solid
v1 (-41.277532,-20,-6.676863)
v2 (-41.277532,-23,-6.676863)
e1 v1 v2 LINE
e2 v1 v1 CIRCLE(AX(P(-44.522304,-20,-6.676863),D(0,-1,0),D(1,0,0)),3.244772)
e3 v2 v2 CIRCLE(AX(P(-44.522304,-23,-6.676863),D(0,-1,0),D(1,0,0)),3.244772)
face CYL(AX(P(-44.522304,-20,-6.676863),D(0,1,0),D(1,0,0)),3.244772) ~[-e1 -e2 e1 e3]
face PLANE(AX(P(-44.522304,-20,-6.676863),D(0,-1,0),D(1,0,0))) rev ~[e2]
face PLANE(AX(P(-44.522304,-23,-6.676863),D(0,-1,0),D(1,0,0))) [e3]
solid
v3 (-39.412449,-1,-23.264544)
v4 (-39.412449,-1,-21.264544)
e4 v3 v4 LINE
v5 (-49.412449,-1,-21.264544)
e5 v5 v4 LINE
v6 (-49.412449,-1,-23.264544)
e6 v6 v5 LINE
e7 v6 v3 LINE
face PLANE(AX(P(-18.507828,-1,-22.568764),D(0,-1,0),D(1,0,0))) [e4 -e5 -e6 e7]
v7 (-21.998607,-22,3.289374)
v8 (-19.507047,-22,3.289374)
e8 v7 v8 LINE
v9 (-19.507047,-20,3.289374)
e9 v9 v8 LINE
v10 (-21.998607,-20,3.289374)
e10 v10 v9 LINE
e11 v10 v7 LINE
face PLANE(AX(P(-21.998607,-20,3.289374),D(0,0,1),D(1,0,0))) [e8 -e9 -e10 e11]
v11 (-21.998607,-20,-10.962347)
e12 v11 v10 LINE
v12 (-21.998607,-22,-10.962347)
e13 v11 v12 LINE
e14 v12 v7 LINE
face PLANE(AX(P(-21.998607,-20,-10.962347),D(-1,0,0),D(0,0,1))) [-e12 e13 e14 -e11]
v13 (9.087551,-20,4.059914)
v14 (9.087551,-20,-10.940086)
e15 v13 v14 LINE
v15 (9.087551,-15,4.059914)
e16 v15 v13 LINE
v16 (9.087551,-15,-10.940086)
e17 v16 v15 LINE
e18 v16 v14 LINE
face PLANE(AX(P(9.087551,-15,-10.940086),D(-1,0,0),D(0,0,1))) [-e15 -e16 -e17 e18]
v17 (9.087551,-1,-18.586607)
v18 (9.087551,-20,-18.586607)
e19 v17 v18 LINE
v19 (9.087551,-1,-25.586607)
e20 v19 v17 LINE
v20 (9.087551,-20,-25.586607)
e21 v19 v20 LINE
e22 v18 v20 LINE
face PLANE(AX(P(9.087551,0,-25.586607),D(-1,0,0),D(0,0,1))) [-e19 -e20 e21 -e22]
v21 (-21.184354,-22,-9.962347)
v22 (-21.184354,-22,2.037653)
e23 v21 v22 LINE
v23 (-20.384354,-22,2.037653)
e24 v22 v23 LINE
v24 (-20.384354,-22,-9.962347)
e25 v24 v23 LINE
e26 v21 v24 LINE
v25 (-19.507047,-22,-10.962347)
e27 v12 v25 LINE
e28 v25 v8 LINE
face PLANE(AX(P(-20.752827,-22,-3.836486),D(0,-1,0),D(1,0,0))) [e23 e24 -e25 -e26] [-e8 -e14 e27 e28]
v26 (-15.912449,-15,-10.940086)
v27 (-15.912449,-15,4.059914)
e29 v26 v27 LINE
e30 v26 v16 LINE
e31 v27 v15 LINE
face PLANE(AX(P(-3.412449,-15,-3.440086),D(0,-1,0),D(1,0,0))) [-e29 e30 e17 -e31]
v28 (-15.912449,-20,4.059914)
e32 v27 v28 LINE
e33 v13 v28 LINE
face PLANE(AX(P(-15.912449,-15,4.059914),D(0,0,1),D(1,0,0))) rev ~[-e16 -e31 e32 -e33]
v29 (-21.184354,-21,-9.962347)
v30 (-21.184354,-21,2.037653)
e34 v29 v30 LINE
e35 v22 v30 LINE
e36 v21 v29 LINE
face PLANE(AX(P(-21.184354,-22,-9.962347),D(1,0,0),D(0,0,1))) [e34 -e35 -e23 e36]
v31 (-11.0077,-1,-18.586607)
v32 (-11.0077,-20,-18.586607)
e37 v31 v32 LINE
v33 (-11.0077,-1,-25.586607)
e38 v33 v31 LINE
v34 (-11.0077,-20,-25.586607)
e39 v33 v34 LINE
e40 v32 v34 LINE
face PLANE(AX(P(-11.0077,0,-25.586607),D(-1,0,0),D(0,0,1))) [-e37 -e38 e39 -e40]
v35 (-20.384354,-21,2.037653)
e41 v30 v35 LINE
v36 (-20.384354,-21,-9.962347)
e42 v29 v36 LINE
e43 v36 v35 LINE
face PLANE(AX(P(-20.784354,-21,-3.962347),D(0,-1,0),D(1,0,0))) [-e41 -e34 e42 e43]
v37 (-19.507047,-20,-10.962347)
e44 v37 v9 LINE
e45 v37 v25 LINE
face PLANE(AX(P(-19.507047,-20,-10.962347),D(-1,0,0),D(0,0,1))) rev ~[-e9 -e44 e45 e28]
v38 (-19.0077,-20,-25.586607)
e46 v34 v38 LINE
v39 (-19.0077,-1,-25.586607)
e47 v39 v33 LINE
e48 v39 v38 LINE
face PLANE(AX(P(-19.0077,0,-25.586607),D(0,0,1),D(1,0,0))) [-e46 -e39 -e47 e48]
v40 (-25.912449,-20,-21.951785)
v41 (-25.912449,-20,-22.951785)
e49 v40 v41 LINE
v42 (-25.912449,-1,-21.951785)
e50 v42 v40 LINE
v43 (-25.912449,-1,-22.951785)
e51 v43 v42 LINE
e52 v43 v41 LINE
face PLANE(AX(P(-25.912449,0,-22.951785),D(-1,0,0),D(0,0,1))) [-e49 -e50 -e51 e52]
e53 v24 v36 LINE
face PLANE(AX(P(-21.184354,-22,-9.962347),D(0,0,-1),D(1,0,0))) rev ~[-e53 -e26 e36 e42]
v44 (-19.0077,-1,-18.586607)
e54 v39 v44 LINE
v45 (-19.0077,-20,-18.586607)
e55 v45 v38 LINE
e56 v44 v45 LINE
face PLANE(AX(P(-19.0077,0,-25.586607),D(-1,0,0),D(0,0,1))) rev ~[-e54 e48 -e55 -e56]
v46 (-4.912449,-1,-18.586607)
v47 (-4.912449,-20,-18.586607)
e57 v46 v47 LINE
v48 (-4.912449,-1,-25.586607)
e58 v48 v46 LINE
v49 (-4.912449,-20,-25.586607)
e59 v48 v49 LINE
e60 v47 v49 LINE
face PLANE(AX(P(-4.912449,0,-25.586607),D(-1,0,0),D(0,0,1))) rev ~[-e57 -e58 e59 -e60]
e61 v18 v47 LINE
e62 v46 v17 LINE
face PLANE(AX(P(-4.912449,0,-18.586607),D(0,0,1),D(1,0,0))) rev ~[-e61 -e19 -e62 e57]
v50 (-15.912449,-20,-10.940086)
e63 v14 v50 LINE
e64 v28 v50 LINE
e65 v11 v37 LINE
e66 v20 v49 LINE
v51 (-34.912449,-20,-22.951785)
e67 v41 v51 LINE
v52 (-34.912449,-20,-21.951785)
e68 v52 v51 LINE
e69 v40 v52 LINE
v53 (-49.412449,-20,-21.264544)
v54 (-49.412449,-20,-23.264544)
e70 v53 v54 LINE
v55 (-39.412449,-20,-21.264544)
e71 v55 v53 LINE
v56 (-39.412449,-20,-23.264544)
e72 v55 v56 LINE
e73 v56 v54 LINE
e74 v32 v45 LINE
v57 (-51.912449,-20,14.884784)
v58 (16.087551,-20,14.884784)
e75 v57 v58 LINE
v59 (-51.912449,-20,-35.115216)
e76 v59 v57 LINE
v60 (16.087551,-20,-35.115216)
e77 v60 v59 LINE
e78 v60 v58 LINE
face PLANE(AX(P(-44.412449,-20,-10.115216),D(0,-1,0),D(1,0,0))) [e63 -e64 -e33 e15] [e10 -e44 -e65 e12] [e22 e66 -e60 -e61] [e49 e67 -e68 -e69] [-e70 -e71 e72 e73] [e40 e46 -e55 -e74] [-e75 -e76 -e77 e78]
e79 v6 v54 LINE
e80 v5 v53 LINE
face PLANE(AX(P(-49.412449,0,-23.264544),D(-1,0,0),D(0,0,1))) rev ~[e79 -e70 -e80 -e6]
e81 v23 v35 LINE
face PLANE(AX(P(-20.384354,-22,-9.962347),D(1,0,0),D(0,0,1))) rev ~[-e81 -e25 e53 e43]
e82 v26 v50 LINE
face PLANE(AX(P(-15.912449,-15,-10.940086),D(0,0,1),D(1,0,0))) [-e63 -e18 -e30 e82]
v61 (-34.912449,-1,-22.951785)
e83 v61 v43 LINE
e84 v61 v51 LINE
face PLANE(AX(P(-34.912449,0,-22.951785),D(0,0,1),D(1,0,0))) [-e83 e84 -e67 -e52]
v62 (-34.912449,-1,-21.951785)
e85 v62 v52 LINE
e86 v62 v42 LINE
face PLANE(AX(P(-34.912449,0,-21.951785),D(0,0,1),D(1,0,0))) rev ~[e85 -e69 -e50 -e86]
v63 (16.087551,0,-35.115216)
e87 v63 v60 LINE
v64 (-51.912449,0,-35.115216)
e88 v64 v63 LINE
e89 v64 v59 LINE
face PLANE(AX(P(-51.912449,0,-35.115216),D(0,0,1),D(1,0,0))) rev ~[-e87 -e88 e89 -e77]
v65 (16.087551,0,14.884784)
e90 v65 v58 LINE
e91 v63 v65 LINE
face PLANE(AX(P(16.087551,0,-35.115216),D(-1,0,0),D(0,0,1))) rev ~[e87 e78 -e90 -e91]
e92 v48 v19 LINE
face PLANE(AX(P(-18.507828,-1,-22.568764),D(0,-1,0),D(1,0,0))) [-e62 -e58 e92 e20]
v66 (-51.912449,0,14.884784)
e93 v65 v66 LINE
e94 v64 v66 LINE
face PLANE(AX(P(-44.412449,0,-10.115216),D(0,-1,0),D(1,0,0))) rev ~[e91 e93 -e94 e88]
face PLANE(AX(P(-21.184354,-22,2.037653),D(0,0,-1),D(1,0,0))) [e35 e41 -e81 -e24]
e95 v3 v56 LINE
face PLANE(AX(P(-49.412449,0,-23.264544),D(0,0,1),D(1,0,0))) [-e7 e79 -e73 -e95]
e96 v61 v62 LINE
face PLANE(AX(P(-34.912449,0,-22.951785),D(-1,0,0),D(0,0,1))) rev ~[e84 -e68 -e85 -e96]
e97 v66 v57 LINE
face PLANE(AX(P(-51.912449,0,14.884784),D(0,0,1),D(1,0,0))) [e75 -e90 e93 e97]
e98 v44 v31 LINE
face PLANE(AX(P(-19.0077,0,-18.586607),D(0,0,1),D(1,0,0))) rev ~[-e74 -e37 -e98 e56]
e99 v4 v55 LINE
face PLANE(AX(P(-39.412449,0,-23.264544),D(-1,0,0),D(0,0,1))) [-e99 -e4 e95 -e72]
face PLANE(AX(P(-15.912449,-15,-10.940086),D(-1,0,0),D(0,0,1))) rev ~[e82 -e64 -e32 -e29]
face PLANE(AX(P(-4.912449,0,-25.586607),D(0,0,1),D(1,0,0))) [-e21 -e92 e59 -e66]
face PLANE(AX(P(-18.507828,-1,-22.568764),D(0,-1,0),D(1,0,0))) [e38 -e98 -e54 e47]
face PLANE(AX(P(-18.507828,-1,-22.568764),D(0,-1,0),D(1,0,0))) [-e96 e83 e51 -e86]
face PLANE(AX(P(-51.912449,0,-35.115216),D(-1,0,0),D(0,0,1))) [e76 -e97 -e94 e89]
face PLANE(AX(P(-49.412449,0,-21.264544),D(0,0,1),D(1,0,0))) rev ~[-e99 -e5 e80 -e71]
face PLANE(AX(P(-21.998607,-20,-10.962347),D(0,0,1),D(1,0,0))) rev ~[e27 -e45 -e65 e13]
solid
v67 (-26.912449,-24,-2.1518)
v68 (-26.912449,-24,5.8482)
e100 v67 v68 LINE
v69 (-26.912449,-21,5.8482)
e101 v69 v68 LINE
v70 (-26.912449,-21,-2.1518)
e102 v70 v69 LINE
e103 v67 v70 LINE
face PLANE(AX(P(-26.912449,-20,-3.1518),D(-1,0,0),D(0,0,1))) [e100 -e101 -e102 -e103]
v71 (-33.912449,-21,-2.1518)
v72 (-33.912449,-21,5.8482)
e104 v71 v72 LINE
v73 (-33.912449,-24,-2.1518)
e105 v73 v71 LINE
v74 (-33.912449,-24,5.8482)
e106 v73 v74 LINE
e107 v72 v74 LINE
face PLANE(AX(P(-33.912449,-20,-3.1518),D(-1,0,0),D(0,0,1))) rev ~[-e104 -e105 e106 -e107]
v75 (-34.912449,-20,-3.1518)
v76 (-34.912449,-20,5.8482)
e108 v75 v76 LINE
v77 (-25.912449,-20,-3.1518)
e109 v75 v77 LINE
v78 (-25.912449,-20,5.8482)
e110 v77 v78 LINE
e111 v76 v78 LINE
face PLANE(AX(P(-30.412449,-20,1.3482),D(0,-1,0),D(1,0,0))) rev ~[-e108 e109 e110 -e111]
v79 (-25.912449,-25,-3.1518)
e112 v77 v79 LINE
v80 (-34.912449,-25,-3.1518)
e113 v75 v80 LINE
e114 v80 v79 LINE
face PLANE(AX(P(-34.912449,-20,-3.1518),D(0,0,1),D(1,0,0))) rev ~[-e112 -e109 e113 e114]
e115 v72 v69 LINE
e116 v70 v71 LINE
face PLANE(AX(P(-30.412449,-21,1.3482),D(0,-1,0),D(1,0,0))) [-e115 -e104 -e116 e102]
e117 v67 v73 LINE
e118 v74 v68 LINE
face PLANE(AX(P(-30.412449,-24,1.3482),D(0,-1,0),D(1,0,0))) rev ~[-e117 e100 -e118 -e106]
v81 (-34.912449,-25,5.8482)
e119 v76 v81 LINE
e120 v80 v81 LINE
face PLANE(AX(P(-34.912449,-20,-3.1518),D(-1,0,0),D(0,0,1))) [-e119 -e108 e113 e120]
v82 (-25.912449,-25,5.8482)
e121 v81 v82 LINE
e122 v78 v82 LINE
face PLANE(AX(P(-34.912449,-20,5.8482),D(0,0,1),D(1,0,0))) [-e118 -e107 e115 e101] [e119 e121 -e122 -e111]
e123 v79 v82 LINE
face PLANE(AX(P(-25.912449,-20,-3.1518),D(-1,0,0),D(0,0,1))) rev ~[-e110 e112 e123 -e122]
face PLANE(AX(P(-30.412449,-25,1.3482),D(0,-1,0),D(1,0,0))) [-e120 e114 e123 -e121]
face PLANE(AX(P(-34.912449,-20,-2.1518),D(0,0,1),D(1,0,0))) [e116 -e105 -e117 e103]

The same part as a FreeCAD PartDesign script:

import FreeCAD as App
import Part
import Sketcher
from FreeCAD import Vector


def faces_at(feature, points):
    """Names of the faces that lie closest to the given points."""
    faces = feature.Shape.Faces
    near = lambda p: min(range(len(faces)), key=lambda i: faces[i].distToShape(Part.Vertex(*p))[0])
    return sorted({f"Face{near(p) + 1}" for p in points})


def add_polygon(sketch, points):
    """Adds a closed chain of lines whose ends are joined by coincident constraints."""
    first, n = sketch.GeometryCount, len(points)
    for a, b in zip(points, points[1:] + points[:1]):
        sketch.addGeometry(Part.LineSegment(App.Vector(*a, 0), App.Vector(*b, 0)), False)
    for i in range(n):
        sketch.addConstraint(Sketcher.Constraint("Coincident", first + i, 2, first + (i + 1) % n, 1))

doc = App.newDocument("Part")
body = doc.addObject("PartDesign::Body", "Body")

# Sketch on XZ plane
sketch1 = body.newObject("Sketcher::SketchObject", "Sketch")
sketch1.AttachmentSupport = (doc.getObject("XZ_Plane"), [""])
sketch1.MapMode = "FlatFace"
add_polygon(sketch1, [(-52, 15), (-52, -35), (-37, -35), (-37, 15)])  # lines 0-3
sketch1.addConstraint(Sketcher.Constraint("Vertical", 0))
sketch1.addConstraint(Sketcher.Constraint("Horizontal", 1))
sketch1.addConstraint(Sketcher.Constraint("Vertical", 2))
sketch1.addConstraint(Sketcher.Constraint("Horizontal", 3))
sketch1.addConstraint(Sketcher.Constraint("DistanceX", 1, 1, 1, 2, 15.0))
sketch1.addConstraint(Sketcher.Constraint("DistanceY", 0, 2, 0, 1, 50.0))
sketch1.addConstraint(Sketcher.Constraint("DistanceX", 0, 2, -1, 1, 51.912449))
sketch1.addConstraint(Sketcher.Constraint("DistanceY", 0, 2, -1, 1, 35.115216))
pad1 = body.newObject("PartDesign::Pad", "Pad")
pad1.Profile = sketch1
pad1.Length = 20

# Sketch on XZ plane
sketch2 = body.newObject("Sketcher::SketchObject", "Sketch001")
sketch2.AttachmentSupport = (doc.getObject("XZ_Plane"), [""])
sketch2.MapMode = "FlatFace"
add_polygon(sketch2, [(-49.4, -21.3), (-49.4, -23.3), (-39.4, -23.3), (-39.4, -21.3)])  # lines 0-3
sketch2.addConstraint(Sketcher.Constraint("Vertical", 0))
sketch2.addConstraint(Sketcher.Constraint("Horizontal", 1))
sketch2.addConstraint(Sketcher.Constraint("Vertical", 2))
sketch2.addConstraint(Sketcher.Constraint("Horizontal", 3))
sketch2.addConstraint(Sketcher.Constraint("DistanceX", 1, 1, 1, 2, 10.0))
sketch2.addConstraint(Sketcher.Constraint("DistanceY", 0, 2, 0, 1, 2.0))
sketch2.addConstraint(Sketcher.Constraint("DistanceX", 0, 2, -1, 1, 49.412449))
sketch2.addConstraint(Sketcher.Constraint("DistanceY", 0, 2, -1, 1, 23.264544))
pocket1 = body.newObject("PartDesign::Pocket", "Pocket")
pocket1.Profile = sketch2
pocket1.Length = 25
pocket1.Reversed = True
body2 = doc.addObject("PartDesign::Body", "Body001")

# Sketch on XZ plane
sketch3 = body2.newObject("Sketcher::SketchObject", "Sketch002")
sketch3.AttachmentSupport = (doc.getObject("XZ_Plane001"), [""])
sketch3.MapMode = "FlatFace"
add_polygon(sketch3, [(-37, 15), (-37, -35), (-24, -35), (-24, 15)])  # lines 0-3
sketch3.addConstraint(Sketcher.Constraint("Vertical", 0))
sketch3.addConstraint(Sketcher.Constraint("Horizontal", 1))
sketch3.addConstraint(Sketcher.Constraint("Vertical", 2))
sketch3.addConstraint(Sketcher.Constraint("Horizontal", 3))
sketch3.addConstraint(Sketcher.Constraint("DistanceX", 1, 1, 1, 2, 13.0))
sketch3.addConstraint(Sketcher.Constraint("DistanceY", 0, 2, 0, 1, 50.0))
sketch3.addConstraint(Sketcher.Constraint("DistanceX", 0, 2, -1, 1, 36.912449))
sketch3.addConstraint(Sketcher.Constraint("DistanceY", 0, 2, -1, 1, 35.115216))
pad2 = body2.newObject("PartDesign::Pad", "Pad001")
pad2.Profile = sketch3
pad2.Length = 20

# Sketch on XZ plane
sketch4 = body2.newObject("Sketcher::SketchObject", "Sketch003")
sketch4.AttachmentSupport = (doc.getObject("XZ_Plane001"), [""])
sketch4.MapMode = "FlatFace"
add_polygon(sketch4, [(-34.9, -22), (-34.9, -23), (-25.9, -23), (-25.9, -22)])  # lines 0-3
sketch4.addConstraint(Sketcher.Constraint("Vertical", 0))
sketch4.addConstraint(Sketcher.Constraint("Horizontal", 1))
sketch4.addConstraint(Sketcher.Constraint("Vertical", 2))
sketch4.addConstraint(Sketcher.Constraint("Horizontal", 3))
sketch4.addConstraint(Sketcher.Constraint("DistanceX", 1, 1, 1, 2, 9.0))
sketch4.addConstraint(Sketcher.Constraint("DistanceY", 0, 2, 0, 1, 1.0))
sketch4.addConstraint(Sketcher.Constraint("DistanceX", 0, 2, -1, 1, 34.912449))
sketch4.addConstraint(Sketcher.Constraint("DistanceY", 0, 2, -1, 1, 22.951785))
pocket2 = body2.newObject("PartDesign::Pocket", "Pocket001")
pocket2.Profile = sketch4
pocket2.Length = 25
pocket2.Reversed = True
body3 = doc.addObject("PartDesign::Body", "Body002")

# Sketch on XZ plane
sketch5 = body3.newObject("Sketcher::SketchObject", "Sketch004")
sketch5.AttachmentSupport = (doc.getObject("XZ_Plane002"), [""])
sketch5.MapMode = "FlatFace"
add_polygon(sketch5, [(-24, 15), (-24, -35), (16, -35), (16, 15)])  # lines 0-3
sketch5.addConstraint(Sketcher.Constraint("Vertical", 0))
sketch5.addConstraint(Sketcher.Constraint("Horizontal", 1))
sketch5.addConstraint(Sketcher.Constraint("Vertical", 2))
sketch5.addConstraint(Sketcher.Constraint("Horizontal", 3))
sketch5.addConstraint(Sketcher.Constraint("DistanceX", 1, 1, 1, 2, 40.0))
sketch5.addConstraint(Sketcher.Constraint("DistanceY", 0, 2, 0, 1, 50.0))
sketch5.addConstraint(Sketcher.Constraint("DistanceX", 0, 2, -1, 1, 23.912449))
sketch5.addConstraint(Sketcher.Constraint("DistanceY", 0, 2, -1, 1, 35.115216))
pad3 = body3.newObject("PartDesign::Pad", "Pad002")
pad3.Profile = sketch5
pad3.Length = 20

# Sketch on XZ plane
sketch6 = body3.newObject("Sketcher::SketchObject", "Sketch005")
sketch6.AttachmentSupport = (doc.getObject("XZ_Plane002"), [""])
sketch6.MapMode = "FlatFace"
add_polygon(sketch6, [(-5, -19), (-5, -26), (9, -26), (9, -19)])  # lines 0-3
add_polygon(sketch6, [(-19, -19), (-19, -26), (-11, -26), (-11, -19)])  # lines 4-7
sketch6.addConstraint(Sketcher.Constraint("Vertical", 0))
sketch6.addConstraint(Sketcher.Constraint("Horizontal", 1))
sketch6.addConstraint(Sketcher.Constraint("Vertical", 2))
sketch6.addConstraint(Sketcher.Constraint("Horizontal", 3))
sketch6.addConstraint(Sketcher.Constraint("Vertical", 4))
sketch6.addConstraint(Sketcher.Constraint("Horizontal", 5))
sketch6.addConstraint(Sketcher.Constraint("Vertical", 6))
sketch6.addConstraint(Sketcher.Constraint("Horizontal", 7))
sketch6.addConstraint(Sketcher.Constraint("Horizontal", 1, 2, 4, 2))
sketch6.addConstraint(Sketcher.Constraint("Horizontal", 3, 2, 6, 2))
sketch6.addConstraint(Sketcher.Constraint("DistanceX", 1, 1, 1, 2, 14.0))
sketch6.addConstraint(Sketcher.Constraint("DistanceX", 5, 1, 5, 2, 8.0))
sketch6.addConstraint(Sketcher.Constraint("DistanceY", 0, 2, 0, 1, 7.0))
sketch6.addConstraint(Sketcher.Constraint("DistanceX", 4, 2, -1, 1, 19.0077))
sketch6.addConstraint(Sketcher.Constraint("DistanceX", 0, 2, -1, 1, 4.912449))
sketch6.addConstraint(Sketcher.Constraint("DistanceY", 0, 2, -1, 1, 25.586607))
pocket3 = body3.newObject("PartDesign::Pocket", "Pocket002")
pocket3.Profile = sketch6
pocket3.Length = 25
pocket3.Reversed = True

# Sketch on XZ plane
sketch7 = body3.newObject("Sketcher::SketchObject", "Sketch006")
sketch7.AttachmentSupport = (doc.getObject("XZ_Plane002"), [""])
sketch7.MapMode = "FlatFace"
sketch7.AttachmentOffset = App.Placement(Vector(0, 0, 15), App.Rotation())
add_polygon(sketch7, [(-16, 4), (-16, -11), (9, -11), (9, 4)])  # lines 0-3
sketch7.addConstraint(Sketcher.Constraint("Vertical", 0))
sketch7.addConstraint(Sketcher.Constraint("Horizontal", 1))
sketch7.addConstraint(Sketcher.Constraint("Vertical", 2))
sketch7.addConstraint(Sketcher.Constraint("Horizontal", 3))
sketch7.addConstraint(Sketcher.Constraint("DistanceX", 1, 1, 1, 2, 25.0))
sketch7.addConstraint(Sketcher.Constraint("DistanceY", 0, 2, 0, 1, 15.0))
sketch7.addConstraint(Sketcher.Constraint("DistanceX", 0, 2, -1, 1, 15.912449))
sketch7.addConstraint(Sketcher.Constraint("DistanceY", 0, 2, -1, 1, 10.940086))
pocket4 = body3.newObject("PartDesign::Pocket", "Pocket003")
pocket4.Profile = sketch7
pocket4.Length = 25
pocket4.Reversed = True
body4 = doc.addObject("PartDesign::Body", "Body003")

# Sketch on XZ plane
sketch8 = body4.newObject("Sketcher::SketchObject", "Sketch007")
sketch8.AttachmentSupport = (doc.getObject("XZ_Plane003"), [""])
sketch8.MapMode = "FlatFace"
add_polygon(sketch8, [(-51, -16), (-51, -29), (14, -29), (14, -16)])  # lines 0-3
sketch8.addConstraint(Sketcher.Constraint("Vertical", 0))
sketch8.addConstraint(Sketcher.Constraint("Horizontal", 1))
sketch8.addConstraint(Sketcher.Constraint("Vertical", 2))
sketch8.addConstraint(Sketcher.Constraint("Horizontal", 3))
sketch8.addConstraint(Sketcher.Constraint("DistanceX", 1, 1, 1, 2, 64.164725))
sketch8.addConstraint(Sketcher.Constraint("DistanceY", 0, 2, 0, 1, 12.227006))
sketch8.addConstraint(Sketcher.Constraint("DistanceX", 0, 2, -1, 1, 50.590191))
sketch8.addConstraint(Sketcher.Constraint("DistanceY", 2, 2, -1, 1, 16.455261))
pad4 = body4.newObject("PartDesign::Pad", "Pad003")
pad4.Profile = sketch8
pad4.Length = 1
doc.recompute()

boolean = body2.newObject("PartDesign::Boolean", "Boolean")
boolean.Type = "Fuse"
boolean.addObjects([body3])
doc.recompute()

boolean2 = body2.newObject("PartDesign::Boolean", "Boolean001")
boolean2.Type = "Fuse"
boolean2.addObjects([body])
doc.recompute()

boolean3 = body2.newObject("PartDesign::Boolean", "Boolean002")
boolean3.Type = "Fuse"
boolean3.addObjects([body4])

# Sketch on XZ plane
sketch9 = body2.newObject("Sketcher::SketchObject", "Sketch008")
sketch9.AttachmentSupport = (doc.getObject("XZ_Plane001"), [""])
sketch9.MapMode = "FlatFace"
sketch9.AttachmentOffset = App.Placement(Vector(0, 0, 20), App.Rotation())
add_polygon(sketch9, [(-22, 3.3), (-22, -11), (-19.5, -11), (-19.5, 3.3)])  # lines 0-3
sketch9.addConstraint(Sketcher.Constraint("Vertical", 0))
sketch9.addConstraint(Sketcher.Constraint("Horizontal", 1))
sketch9.addConstraint(Sketcher.Constraint("Vertical", 2))
sketch9.addConstraint(Sketcher.Constraint("Horizontal", 3))
sketch9.addConstraint(Sketcher.Constraint("DistanceX", 1, 1, 1, 2, 2.49156))
sketch9.addConstraint(Sketcher.Constraint("DistanceY", 0, 2, 0, 1, 14.251721))
sketch9.addConstraint(Sketcher.Constraint("DistanceX", 0, 2, -1, 1, 21.998607))
sketch9.addConstraint(Sketcher.Constraint("DistanceY", 0, 2, -1, 1, 10.962347))
pad5 = body2.newObject("PartDesign::Pad", "Pad004")
pad5.Profile = sketch9
pad5.Length = 2

# Sketch on XZ plane
sketch10 = body2.newObject("Sketcher::SketchObject", "Sketch009")
sketch10.AttachmentSupport = (doc.getObject("XZ_Plane001"), [""])
sketch10.MapMode = "FlatFace"
sketch10.AttachmentOffset = App.Placement(Vector(0, 0, 22), App.Rotation())
add_polygon(sketch10, [(-21.2, 2), (-21.2, -10), (-20.4, -10), (-20.4, 2)])  # lines 0-3
sketch10.addConstraint(Sketcher.Constraint("Vertical", 0))
sketch10.addConstraint(Sketcher.Constraint("Horizontal", 1))
sketch10.addConstraint(Sketcher.Constraint("Vertical", 2))
sketch10.addConstraint(Sketcher.Constraint("Horizontal", 3))
sketch10.addConstraint(Sketcher.Constraint("DistanceY", 0, 2, 0, 1, 12.0))
sketch10.addConstraint(Sketcher.Constraint("DistanceX", 1, 1, 1, 2, 0.8))
sketch10.addConstraint(Sketcher.Constraint("DistanceX", 0, 2, -1, 1, 21.184354))
sketch10.addConstraint(Sketcher.Constraint("DistanceY", 0, 2, -1, 1, 9.962347))
pocket5 = body2.newObject("PartDesign::Pocket", "Pocket004")
pocket5.Profile = sketch10
pocket5.Length = 1
body5 = doc.addObject("PartDesign::Body", "Body004")

# Sketch on XZ plane
sketch11 = body5.newObject("Sketcher::SketchObject", "Sketch010")
sketch11.AttachmentSupport = (doc.getObject("XZ_Plane004"), [""])
sketch11.MapMode = "FlatFace"
sketch11.AttachmentOffset = App.Placement(Vector(0, 0, 20), App.Rotation())
add_polygon(sketch11, [(-35, 6), (-35, -3), (-26, -3), (-26, 6)])  # lines 0-3
sketch11.addConstraint(Sketcher.Constraint("Vertical", 0))
sketch11.addConstraint(Sketcher.Constraint("Horizontal", 1))
sketch11.addConstraint(Sketcher.Constraint("Vertical", 2))
sketch11.addConstraint(Sketcher.Constraint("Horizontal", 3))
sketch11.addConstraint(Sketcher.Constraint("Equal", 3, 0))
sketch11.addConstraint(Sketcher.Constraint("DistanceX", 1, 1, 1, 2, 9.0))
sketch11.addConstraint(Sketcher.Constraint("DistanceY", 0, 2, -1, 1, 3.1518))
sketch11.addConstraint(Sketcher.Constraint("DistanceX", 0, 2, -1, 1, 34.912449))
pad6 = body5.newObject("PartDesign::Pad", "Pad005")
pad6.Profile = sketch11
pad6.Length = 5
doc.recompute()

thickness = body5.newObject("PartDesign::Thickness", "Thickness")
thickness.Base = (pad6, faces_at(pad6, [(-30.412, -22.5, 5.848)]))
thickness.Value = 1
thickness.Reversed = True
thickness.Join = "Arc"
body6 = doc.addObject("PartDesign::Body", "Body005")

# Sketch on XZ plane
sketch12 = body6.newObject("Sketcher::SketchObject", "Sketch011")
sketch12.AttachmentSupport = (doc.getObject("XZ_Plane005"), [""])
sketch12.MapMode = "FlatFace"
sketch12.AttachmentOffset = App.Placement(Vector(0, 0, 20), App.Rotation())
sketch12.addGeometry(Part.Circle(Vector(-44.5, -6.7, 0), Vector(0, 0, 1), 3.2), False)
sketch12.addConstraint(Sketcher.Constraint("Diameter", 0, 6.489543))
sketch12.addConstraint(Sketcher.Constraint("DistanceX", 0, 3, -1, 1, 44.522304))
sketch12.addConstraint(Sketcher.Constraint("DistanceY", 0, 3, -1, 1, 6.676863))
pad7 = body6.newObject("PartDesign::Pad", "Pad006")
pad7.Profile = sketch12
pad7.Length = 3

doc.recompute()
